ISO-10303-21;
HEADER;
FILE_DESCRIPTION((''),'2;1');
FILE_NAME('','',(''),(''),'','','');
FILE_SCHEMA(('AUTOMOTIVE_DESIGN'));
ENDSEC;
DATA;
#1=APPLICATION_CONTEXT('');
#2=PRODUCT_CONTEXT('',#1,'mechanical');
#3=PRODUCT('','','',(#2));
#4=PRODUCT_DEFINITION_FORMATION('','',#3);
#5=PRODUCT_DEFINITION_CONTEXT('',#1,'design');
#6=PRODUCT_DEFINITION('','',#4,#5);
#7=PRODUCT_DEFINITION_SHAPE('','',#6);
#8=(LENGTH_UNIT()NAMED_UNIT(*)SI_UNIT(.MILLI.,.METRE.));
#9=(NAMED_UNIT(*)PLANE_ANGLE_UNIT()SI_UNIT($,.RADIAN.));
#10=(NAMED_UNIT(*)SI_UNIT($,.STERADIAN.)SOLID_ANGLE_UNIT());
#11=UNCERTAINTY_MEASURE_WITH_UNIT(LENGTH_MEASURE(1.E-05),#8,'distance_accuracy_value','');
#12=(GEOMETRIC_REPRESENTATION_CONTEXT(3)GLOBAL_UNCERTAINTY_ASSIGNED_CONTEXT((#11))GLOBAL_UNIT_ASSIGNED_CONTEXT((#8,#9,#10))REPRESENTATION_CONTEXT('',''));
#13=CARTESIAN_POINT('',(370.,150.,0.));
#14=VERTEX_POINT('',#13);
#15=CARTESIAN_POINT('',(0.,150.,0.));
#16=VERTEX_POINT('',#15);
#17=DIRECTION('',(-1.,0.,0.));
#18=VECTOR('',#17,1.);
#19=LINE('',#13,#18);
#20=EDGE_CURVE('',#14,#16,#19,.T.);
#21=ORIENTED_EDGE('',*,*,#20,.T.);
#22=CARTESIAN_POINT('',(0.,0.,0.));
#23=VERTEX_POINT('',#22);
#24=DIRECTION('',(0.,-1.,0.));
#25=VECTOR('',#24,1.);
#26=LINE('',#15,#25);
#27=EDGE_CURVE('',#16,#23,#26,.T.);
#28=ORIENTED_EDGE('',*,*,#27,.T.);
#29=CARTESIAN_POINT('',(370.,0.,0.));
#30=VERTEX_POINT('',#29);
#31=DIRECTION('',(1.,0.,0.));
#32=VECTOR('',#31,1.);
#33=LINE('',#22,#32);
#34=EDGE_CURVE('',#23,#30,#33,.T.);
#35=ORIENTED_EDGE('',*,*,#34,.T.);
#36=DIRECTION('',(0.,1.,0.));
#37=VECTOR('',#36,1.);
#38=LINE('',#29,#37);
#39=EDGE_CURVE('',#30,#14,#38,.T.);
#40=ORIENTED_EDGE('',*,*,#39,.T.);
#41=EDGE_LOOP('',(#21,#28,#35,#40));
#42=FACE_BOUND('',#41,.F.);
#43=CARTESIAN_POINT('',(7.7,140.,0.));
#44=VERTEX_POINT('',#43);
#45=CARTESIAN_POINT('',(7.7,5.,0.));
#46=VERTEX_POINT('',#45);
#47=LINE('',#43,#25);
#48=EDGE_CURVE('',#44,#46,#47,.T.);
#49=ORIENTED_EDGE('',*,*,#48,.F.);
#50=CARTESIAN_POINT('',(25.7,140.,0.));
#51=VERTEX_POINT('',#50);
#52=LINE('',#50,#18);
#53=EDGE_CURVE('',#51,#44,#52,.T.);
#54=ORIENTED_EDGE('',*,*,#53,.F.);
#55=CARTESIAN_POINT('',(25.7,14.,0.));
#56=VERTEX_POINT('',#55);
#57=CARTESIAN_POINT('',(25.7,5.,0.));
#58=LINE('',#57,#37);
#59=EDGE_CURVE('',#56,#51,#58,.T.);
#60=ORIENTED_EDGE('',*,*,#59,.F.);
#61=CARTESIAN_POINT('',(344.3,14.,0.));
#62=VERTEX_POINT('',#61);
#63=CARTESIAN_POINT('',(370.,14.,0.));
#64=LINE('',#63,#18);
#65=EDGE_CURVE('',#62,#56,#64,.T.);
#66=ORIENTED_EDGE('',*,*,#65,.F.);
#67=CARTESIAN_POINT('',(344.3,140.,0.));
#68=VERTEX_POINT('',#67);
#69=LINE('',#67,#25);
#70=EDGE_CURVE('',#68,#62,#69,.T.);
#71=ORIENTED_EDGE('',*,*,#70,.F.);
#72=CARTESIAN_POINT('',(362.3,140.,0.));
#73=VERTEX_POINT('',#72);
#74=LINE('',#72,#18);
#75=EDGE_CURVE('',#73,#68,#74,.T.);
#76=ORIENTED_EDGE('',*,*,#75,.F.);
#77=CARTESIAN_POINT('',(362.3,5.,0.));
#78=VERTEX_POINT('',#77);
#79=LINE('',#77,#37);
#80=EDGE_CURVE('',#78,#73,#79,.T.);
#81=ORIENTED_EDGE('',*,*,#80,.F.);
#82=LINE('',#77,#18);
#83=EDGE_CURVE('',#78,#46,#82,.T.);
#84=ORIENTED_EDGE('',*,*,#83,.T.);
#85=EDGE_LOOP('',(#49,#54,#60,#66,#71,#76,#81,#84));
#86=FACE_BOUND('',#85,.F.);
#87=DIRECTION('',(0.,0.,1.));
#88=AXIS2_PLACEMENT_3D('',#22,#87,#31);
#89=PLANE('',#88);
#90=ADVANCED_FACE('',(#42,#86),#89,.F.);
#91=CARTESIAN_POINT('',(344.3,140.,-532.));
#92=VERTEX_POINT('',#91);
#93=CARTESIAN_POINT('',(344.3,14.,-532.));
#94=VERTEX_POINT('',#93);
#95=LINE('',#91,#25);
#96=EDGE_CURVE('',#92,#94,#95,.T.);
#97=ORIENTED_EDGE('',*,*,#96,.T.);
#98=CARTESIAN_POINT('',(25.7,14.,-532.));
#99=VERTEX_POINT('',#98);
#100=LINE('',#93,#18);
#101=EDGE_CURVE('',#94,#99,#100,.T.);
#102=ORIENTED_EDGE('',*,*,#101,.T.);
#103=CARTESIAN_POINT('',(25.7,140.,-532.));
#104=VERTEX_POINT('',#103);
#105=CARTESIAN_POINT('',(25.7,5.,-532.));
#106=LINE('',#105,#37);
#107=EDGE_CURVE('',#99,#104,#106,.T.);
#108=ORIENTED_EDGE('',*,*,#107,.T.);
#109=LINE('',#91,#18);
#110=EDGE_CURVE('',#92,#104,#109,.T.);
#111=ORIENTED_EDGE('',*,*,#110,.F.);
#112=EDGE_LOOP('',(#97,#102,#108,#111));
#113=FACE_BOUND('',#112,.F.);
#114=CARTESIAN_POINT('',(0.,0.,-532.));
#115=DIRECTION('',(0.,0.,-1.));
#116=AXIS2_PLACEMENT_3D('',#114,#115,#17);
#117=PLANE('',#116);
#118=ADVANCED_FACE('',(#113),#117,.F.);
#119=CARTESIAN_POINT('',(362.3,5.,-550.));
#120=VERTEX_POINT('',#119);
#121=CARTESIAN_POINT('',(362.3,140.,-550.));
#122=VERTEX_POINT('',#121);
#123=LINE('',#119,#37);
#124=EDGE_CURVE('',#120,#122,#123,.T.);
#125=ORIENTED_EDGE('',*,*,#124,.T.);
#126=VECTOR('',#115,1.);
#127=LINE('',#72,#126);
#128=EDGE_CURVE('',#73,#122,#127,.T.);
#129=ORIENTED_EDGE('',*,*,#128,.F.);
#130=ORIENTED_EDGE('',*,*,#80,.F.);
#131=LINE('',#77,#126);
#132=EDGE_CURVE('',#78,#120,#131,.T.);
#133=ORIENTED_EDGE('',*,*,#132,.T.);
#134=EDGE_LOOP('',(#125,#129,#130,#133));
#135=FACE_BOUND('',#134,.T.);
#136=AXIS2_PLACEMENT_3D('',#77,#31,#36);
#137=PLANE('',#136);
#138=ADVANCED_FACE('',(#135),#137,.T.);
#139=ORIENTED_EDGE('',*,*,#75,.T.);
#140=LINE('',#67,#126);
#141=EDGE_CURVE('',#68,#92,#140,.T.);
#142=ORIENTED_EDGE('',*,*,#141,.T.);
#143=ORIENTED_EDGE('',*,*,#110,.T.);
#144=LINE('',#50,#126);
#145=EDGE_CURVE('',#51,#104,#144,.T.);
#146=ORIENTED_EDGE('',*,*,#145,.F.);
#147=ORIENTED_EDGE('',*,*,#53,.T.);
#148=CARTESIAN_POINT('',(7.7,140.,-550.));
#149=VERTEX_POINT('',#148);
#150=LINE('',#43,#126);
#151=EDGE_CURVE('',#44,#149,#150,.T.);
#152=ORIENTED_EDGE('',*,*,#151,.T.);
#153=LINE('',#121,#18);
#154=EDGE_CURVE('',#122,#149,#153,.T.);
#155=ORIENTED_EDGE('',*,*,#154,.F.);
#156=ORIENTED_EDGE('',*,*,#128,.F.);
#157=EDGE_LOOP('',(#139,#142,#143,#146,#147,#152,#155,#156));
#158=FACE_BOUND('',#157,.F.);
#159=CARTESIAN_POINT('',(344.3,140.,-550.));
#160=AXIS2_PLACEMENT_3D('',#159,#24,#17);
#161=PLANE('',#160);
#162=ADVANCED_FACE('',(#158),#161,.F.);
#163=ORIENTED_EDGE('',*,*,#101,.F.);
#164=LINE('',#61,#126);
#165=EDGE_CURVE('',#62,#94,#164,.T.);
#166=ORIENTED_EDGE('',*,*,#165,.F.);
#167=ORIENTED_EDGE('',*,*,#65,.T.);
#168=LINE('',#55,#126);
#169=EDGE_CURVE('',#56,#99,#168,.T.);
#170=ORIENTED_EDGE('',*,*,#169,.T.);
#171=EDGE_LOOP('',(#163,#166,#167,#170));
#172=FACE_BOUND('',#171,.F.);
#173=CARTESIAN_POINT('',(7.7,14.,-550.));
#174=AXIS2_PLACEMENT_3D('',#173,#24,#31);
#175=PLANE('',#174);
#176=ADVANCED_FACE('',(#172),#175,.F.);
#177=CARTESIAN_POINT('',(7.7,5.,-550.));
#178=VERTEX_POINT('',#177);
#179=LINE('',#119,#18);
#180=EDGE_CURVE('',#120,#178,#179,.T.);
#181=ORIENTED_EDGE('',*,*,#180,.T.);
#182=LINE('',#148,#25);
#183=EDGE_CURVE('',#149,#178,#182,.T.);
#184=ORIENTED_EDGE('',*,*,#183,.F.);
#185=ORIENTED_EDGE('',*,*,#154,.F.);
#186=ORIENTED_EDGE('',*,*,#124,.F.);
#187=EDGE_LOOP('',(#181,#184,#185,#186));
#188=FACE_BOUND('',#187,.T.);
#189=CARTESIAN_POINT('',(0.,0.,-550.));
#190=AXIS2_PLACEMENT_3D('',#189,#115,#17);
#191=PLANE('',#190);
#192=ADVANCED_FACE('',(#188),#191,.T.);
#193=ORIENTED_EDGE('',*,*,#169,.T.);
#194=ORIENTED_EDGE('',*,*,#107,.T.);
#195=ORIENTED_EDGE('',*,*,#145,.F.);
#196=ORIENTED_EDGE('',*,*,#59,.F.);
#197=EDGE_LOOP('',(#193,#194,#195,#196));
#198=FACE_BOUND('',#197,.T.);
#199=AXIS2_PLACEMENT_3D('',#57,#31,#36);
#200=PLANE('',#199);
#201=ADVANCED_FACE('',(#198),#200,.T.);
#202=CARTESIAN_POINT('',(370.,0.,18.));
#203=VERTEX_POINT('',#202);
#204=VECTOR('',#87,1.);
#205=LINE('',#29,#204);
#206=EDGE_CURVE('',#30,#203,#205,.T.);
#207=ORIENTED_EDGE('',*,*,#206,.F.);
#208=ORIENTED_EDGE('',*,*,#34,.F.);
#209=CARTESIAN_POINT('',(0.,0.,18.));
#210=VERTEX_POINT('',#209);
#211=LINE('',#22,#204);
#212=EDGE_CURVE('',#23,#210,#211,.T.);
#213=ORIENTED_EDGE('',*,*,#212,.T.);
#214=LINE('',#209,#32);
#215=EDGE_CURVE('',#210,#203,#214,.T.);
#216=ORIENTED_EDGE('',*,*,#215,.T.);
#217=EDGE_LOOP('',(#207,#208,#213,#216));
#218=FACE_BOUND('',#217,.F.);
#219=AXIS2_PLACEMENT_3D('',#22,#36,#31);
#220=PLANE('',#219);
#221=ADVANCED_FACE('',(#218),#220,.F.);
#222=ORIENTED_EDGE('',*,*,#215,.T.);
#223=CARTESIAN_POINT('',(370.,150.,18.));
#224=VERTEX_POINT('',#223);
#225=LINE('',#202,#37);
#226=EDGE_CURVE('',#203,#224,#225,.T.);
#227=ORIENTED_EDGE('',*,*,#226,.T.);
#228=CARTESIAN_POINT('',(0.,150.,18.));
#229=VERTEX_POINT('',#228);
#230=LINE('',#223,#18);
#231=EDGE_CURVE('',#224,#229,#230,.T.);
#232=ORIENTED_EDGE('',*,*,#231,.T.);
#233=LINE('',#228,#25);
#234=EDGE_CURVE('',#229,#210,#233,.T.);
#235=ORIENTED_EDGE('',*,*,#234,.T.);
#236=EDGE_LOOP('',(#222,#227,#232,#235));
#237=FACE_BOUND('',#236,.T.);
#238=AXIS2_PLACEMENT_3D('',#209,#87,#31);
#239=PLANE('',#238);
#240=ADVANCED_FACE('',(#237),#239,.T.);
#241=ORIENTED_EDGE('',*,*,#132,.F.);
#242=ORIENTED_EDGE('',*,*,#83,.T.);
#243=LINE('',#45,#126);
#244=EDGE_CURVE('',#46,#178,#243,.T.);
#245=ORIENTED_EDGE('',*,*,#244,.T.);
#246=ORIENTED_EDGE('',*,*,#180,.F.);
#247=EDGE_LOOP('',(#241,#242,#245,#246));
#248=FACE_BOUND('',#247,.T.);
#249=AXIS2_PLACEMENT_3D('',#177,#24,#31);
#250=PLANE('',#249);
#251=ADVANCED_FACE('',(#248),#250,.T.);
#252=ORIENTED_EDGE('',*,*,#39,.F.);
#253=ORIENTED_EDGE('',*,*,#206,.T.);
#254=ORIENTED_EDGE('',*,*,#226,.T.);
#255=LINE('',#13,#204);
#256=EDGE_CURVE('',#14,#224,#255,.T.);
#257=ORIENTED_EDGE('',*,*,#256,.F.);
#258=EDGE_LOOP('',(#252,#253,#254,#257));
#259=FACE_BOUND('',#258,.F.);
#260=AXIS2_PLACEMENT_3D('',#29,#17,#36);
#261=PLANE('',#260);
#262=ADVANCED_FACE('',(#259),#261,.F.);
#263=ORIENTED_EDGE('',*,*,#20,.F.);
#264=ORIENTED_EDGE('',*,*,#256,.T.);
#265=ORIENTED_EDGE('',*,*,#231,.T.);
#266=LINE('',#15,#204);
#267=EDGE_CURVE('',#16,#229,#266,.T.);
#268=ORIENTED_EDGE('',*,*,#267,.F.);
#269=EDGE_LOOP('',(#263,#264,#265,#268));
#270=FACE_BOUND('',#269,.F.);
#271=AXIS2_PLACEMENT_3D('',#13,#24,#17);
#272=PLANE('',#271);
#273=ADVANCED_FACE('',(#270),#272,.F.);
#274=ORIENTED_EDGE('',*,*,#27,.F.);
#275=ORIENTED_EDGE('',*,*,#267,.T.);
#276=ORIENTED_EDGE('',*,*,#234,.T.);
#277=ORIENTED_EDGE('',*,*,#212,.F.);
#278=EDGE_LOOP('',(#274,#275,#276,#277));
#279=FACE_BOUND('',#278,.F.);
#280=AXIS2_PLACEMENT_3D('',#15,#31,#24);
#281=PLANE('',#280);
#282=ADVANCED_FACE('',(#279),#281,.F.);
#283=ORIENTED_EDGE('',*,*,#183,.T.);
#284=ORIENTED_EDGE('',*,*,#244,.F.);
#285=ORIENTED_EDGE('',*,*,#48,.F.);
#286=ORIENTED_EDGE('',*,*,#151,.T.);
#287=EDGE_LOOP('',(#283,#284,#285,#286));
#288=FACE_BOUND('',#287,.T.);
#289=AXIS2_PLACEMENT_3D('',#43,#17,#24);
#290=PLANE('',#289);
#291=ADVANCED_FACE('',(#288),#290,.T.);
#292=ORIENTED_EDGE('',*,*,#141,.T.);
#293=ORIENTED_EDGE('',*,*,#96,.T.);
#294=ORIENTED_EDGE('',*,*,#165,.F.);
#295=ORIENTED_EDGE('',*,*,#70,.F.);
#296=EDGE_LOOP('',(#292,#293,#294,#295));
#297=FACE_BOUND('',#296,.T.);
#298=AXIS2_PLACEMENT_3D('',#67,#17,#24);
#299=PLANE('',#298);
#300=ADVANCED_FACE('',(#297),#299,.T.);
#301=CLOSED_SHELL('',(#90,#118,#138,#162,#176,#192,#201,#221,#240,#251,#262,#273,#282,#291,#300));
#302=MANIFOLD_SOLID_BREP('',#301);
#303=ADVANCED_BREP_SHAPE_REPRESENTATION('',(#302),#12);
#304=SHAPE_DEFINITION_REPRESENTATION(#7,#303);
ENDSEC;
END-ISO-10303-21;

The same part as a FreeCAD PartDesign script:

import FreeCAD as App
import Part
import Sketcher

V = App.Vector
Q = App.Units.Quantity


def add_polygon(sketch, points):
    """Adds a closed chain of lines whose ends are joined by coincident constraints."""
    first, n = sketch.GeometryCount, len(points)
    for a, b in zip(points, points[1:] + points[:1]):
        sketch.addGeometry(Part.LineSegment(App.Vector(*a, 0), App.Vector(*b, 0)), False)
    for i in range(n):
        sketch.addConstraint(Sketcher.Constraint("Coincident", first + i, 2, first + (i + 1) % n, 1))

doc = App.newDocument("Part")
body = doc.addObject("PartDesign::Body", "Body")

sketch1 = doc.addObject("Sketcher::SketchObject", "Sketch")
body.addObject(sketch1)
sketch1.AttachmentSupport = (doc.XY_Plane, [""])
sketch1.MapMode = "FlatFace"
add_polygon(sketch1, [(0, 150), (0, 0), (370, 0), (370, 150)])
sketch1.addConstraint(Sketcher.Constraint("Vertical", 0))
sketch1.addConstraint(Sketcher.Constraint("Horizontal", 1))
sketch1.addConstraint(Sketcher.Constraint("Vertical", 2))
sketch1.addConstraint(Sketcher.Constraint("Horizontal", 3))
sketch1.addConstraint(Sketcher.Constraint("Coincident", 0, 2, -1, 1))
sketch1.addConstraint(Sketcher.Constraint("DistanceX", 1, 1, 1, 2, Q("370 mm")))
sketch1.addConstraint(Sketcher.Constraint("DistanceY", 0, 2, 0, 1, Q("150 mm")))
pad1 = doc.addObject("PartDesign::Pad", "Pad")
body.addObject(pad1)
pad1.Profile = sketch1
pad1.Length = 18

sketch2 = doc.addObject("Sketcher::SketchObject", "Sketch001")
body.addObject(sketch2)
sketch2.AttachmentSupport = (doc.XY_Plane, [""])
sketch2.MapMode = "FlatFace"
add_polygon(sketch2, [(344, 140), (362, 140), (362, 5), (344, 5)])
add_polygon(sketch2, [(8, 140), (26, 140), (26, 5), (8, 5)])
sketch2.addConstraint(Sketcher.Constraint("Horizontal", 0))
sketch2.addConstraint(Sketcher.Constraint("Vertical", 1))
sketch2.addConstraint(Sketcher.Constraint("Horizontal", 2))
sketch2.addConstraint(Sketcher.Constraint("Vertical", 3))
sketch2.addConstraint(Sketcher.Constraint("Horizontal", 4))
sketch2.addConstraint(Sketcher.Constraint("Vertical", 5))
sketch2.addConstraint(Sketcher.Constraint("Horizontal", 6))
sketch2.addConstraint(Sketcher.Constraint("Vertical", 7))
sketch2.addConstraint(Sketcher.Constraint("Horizontal", 3, 2, 4, 2))
sketch2.addConstraint(Sketcher.Constraint("Horizontal", 2, 2, 5, 2))
sketch2.addConstraint(Sketcher.Constraint("Equal", 2, 4))
sketch2.addConstraint(Sketcher.Constraint("DistanceX", 0, 1, 0, 2, Q("18 mm")))
sketch2.addConstraint(Sketcher.Constraint("DistanceY", 1, 2, 1, 1, Q("135 mm")))
sketch2.addConstraint(Sketcher.Constraint("DistanceY", -1, 1, 1, 2, Q("5 mm")))
sketch2.addConstraint(Sketcher.Constraint("DistanceX", -1, 1, 6, 2, Q("7.7 mm")))
sketch2.addConstraint(Sketcher.Constraint("DistanceX", -1, 1, 0, 2, Q("362.3 mm")))
pad2 = doc.addObject("PartDesign::Pad", "Pad001")
body.addObject(pad2)
pad2.Profile = sketch2
pad2.Length = 550
pad2.Reversed = True

sketch3 = doc.addObject("Sketcher::SketchObject", "Sketch002")
body.addObject(sketch3)
sketch3.AttachmentSupport = (doc.XY_Plane, [""])
sketch3.MapMode = "FlatFace"
sketch3.AttachmentOffset = App.Placement(V(0, 0, -550), App.Rotation())
add_polygon(sketch3, [(26, 140), (344, 140), (344, 5), (26, 5)])
sketch3.addConstraint(Sketcher.Constraint("Horizontal", 0))
sketch3.addConstraint(Sketcher.Constraint("Vertical", 1))
sketch3.addConstraint(Sketcher.Constraint("Horizontal", 2))
sketch3.addConstraint(Sketcher.Constraint("Vertical", 3))
sketch3.addConstraint(Sketcher.Constraint("DistanceY", 1, 2, 1, 1, Q("135 mm")))
sketch3.addConstraint(Sketcher.Constraint("DistanceX", 0, 1, 0, 2, Q("318.6 mm")))
sketch3.addConstraint(Sketcher.Constraint("DistanceY", -1, 1, 0, 2, Q("140 mm")))
sketch3.addConstraint(Sketcher.Constraint("DistanceX", -1, 1, 0, 2, Q("344.3 mm")))
pad3 = doc.addObject("PartDesign::Pad", "Pad002")
body.addObject(pad3)
pad3.Profile = sketch3
pad3.Length = 18

sketch4 = doc.addObject("Sketcher::SketchObject", "Sketch003")
body.addObject(sketch4)
sketch4.AttachmentSupport = (doc.XZ_Plane, [""])
sketch4.MapMode = "FlatFace"
sketch4.AttachmentOffset = App.Placement(V(0, 0, -5), App.Rotation())
add_polygon(sketch4, [(344, -532), (344, 0), (26, 0), (26, -532)])
sketch4.addConstraint(Sketcher.Constraint("Vertical", 0))
sketch4.addConstraint(Sketcher.Constraint("Horizontal", 1))
sketch4.addConstraint(Sketcher.Constraint("Vertical", 2))
sketch4.addConstraint(Sketcher.Constraint("Horizontal", 3))
sketch4.addConstraint(Sketcher.Constraint("PointOnObject", 0, 2, -1))
sketch4.addConstraint(Sketcher.Constraint("DistanceY", 0, 1, 0, 2, Q("532 mm")))
sketch4.addConstraint(Sketcher.Constraint("DistanceX", 1, 2, 1, 1, Q("318.6 mm")))
sketch4.addConstraint(Sketcher.Constraint("DistanceX", -1, 1, 0, 2, Q("344.3 mm")))
pad4 = doc.addObject("PartDesign::Pad", "Pad003")
body.addObject(pad4)
pad4.Profile = sketch4
pad4.Length = 9
pad4.Reversed = True

doc.recompute()
